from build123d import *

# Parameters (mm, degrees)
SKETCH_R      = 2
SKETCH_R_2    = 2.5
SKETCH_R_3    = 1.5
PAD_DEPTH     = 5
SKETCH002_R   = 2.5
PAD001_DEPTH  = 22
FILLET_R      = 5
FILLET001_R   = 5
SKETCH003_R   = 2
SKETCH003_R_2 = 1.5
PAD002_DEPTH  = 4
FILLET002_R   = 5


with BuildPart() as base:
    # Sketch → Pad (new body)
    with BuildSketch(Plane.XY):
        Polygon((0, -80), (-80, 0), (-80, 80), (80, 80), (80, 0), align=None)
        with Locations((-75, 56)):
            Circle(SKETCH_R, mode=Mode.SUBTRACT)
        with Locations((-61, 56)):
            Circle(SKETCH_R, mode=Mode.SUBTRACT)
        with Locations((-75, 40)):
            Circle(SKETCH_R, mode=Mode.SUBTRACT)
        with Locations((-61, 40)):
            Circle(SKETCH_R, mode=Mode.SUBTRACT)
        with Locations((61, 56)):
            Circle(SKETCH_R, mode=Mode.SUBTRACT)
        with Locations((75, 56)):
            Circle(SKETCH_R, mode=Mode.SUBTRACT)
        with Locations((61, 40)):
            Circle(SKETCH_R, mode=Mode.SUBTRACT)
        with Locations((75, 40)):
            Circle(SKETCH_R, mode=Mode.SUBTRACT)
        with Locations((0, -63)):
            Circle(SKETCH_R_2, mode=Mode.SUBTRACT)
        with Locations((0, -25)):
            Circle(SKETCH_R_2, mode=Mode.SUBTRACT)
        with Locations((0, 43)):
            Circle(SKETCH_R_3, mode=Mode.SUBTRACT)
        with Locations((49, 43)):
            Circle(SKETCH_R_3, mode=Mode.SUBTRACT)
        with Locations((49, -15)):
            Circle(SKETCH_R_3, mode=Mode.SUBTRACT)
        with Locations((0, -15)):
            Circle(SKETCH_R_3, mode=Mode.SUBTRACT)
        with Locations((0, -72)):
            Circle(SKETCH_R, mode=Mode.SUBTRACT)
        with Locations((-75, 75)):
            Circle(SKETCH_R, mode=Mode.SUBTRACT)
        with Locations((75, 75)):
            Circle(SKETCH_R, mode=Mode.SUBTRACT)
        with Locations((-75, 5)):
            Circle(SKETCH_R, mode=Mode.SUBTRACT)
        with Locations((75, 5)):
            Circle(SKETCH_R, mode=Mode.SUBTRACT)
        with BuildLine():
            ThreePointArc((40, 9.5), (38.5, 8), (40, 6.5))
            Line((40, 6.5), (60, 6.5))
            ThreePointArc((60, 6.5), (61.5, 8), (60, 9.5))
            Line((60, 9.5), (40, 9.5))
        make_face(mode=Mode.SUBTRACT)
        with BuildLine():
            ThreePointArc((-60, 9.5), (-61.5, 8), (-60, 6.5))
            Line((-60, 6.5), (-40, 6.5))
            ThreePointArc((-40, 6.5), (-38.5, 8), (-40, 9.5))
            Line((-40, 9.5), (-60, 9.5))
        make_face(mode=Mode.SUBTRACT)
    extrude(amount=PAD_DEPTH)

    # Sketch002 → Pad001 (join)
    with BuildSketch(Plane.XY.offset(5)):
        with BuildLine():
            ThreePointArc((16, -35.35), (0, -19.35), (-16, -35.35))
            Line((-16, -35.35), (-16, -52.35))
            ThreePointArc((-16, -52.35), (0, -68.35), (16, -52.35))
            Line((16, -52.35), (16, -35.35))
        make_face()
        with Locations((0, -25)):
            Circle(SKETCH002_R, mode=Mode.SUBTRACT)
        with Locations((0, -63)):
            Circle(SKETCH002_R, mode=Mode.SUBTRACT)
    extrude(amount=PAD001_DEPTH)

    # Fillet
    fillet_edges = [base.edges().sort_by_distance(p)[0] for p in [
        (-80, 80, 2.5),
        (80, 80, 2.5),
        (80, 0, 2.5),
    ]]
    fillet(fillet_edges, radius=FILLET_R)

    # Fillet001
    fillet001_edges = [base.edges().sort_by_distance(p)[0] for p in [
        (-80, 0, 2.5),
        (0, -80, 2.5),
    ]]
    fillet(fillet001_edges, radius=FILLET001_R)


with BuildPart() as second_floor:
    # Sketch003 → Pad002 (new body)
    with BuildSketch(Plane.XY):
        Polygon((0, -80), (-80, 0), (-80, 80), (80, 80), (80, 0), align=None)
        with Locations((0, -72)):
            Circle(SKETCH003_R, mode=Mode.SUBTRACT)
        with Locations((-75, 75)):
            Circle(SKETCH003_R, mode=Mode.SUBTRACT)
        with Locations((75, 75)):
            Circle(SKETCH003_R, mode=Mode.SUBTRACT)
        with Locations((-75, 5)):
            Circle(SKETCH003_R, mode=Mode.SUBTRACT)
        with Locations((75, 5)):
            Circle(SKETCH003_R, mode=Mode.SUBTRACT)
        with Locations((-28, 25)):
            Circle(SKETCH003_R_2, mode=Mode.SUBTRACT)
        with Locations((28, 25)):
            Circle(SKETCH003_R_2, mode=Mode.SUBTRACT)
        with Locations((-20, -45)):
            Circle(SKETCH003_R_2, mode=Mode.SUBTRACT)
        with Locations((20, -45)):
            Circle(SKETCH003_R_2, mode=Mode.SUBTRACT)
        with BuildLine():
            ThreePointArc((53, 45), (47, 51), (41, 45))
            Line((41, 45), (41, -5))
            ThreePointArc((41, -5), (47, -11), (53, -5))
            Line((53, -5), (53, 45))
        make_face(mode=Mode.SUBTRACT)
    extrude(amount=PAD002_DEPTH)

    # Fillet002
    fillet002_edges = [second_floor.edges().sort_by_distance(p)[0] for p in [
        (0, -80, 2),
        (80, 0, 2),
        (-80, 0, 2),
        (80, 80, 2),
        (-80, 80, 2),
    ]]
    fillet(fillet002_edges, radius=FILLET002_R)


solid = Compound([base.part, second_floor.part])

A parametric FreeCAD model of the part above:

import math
import FreeCAD as App
import Part
import Sketcher
Q = App.Units.Quantity


def edges_at(feature, points):
    """Names of the edges that pass closest to the given points."""
    edges = feature.Shape.Edges
    near = lambda p: min(range(len(edges)), key=lambda i: edges[i].distToShape(Part.Vertex(*p))[0])
    return sorted({f"Edge{near(p) + 1}" for p in points})

doc = App.newDocument("Part")
params = doc.addObject("Spreadsheet::Sheet", "Params")
for row, (alias, value) in enumerate([
    ("sketch1_diameter", "3 mm"),
    ("sketch1_diameter2", "4 mm"),
    ("sketch1_diameter3", "5 mm"),
    ("sketch1_width", "160 mm"),
    ("sketch1_width2", "20 mm"),
    ("pad1_length", "5 mm"),
    ("sketch2_diameter", "5 mm"),
    ("sketch2_radius", "16 mm"),
    ("sketch2_height", "17 mm"),
    ("pad2_length", "22 mm"),
    ("fillet_radius", "5 mm"),
    ("fillet2_radius", "5 mm"),
    ("sketch3_diameter", "3 mm"),
    ("sketch3_diameter2", "4 mm"),
    ("sketch3_radius", "6 mm"),
    ("sketch3_width", "160 mm"),
    ("sketch3_height", "80 mm"),
    ("pad3_length", "4 mm"),
    ("fillet3_radius", "5 mm"),
], start=1):
    params.set(f"A{row}", alias)
    params.set(f"B{row}", "=" + value)
    params.setAlias(f"B{row}", alias)

body = doc.addObject("PartDesign::Body", "Body")

# Sketch on XY plane
sketch1 = body.newObject("Sketcher::SketchObject", "Sketch")
sketch1.AttachmentSupport = (doc.getObject("XY_Plane"), [""])
sketch1.MapMode = "FlatFace"
sketch1.addGeometry(Part.LineSegment(App.Vector(-80, 0, 0), App.Vector(0, -80, 0)), False)
sketch1.addGeometry(Part.LineSegment(App.Vector(0, -80, 0), App.Vector(80, 0, 0)), False)
sketch1.addGeometry(Part.LineSegment(App.Vector(80, 0, 0), App.Vector(80, 80, 0)), False)
sketch1.addGeometry(Part.LineSegment(App.Vector(80, 80, 0), App.Vector(-80, 80, 0)), False)
sketch1.addGeometry(Part.LineSegment(App.Vector(-80, 80, 0), App.Vector(-80, 0, 0)), False)
sketch1.addGeometry(Part.Circle(App.Vector(49, -15, 0), App.Vector(0, 0, 1), 1.5), False)
sketch1.addGeometry(Part.Circle(App.Vector(0, -72, 0), App.Vector(0, 0, 1), 2), False)
sketch1.addGeometry(Part.Circle(App.Vector(0, -63, 0), App.Vector(0, 0, 1), 2.5), False)
sketch1.addGeometry(Part.Circle(App.Vector(0, -25, 0), App.Vector(0, 0, 1), 2.5), False)
sketch1.addGeometry(Part.Circle(App.Vector(0, -15, 0), App.Vector(0, 0, 1), 1.5), False)
sketch1.addGeometry(Part.Circle(App.Vector(75, 5, 0), App.Vector(0, 0, 1), 2), False)
sketch1.addGeometry(Part.LineSegment(App.Vector(40, 9.5, 0), App.Vector(60, 9.5, 0)), False)
sketch1.addGeometry(Part.ArcOfCircle(Part.Circle(App.Vector(60, 8, 0), App.Vector(0, 0, 1), 1.5), math.radians(-90), math.radians(90)), False)
sketch1.addGeometry(Part.LineSegment(App.Vector(60, 6.5, 0), App.Vector(40, 6.5, 0)), False)
sketch1.addGeometry(Part.ArcOfCircle(Part.Circle(App.Vector(40, 8, 0), App.Vector(0, 0, 1), 1.5), math.radians(90), math.radians(270)), False)
sketch1.addGeometry(Part.Circle(App.Vector(75, 40, 0), App.Vector(0, 0, 1), 2), False)
sketch1.addGeometry(Part.Circle(App.Vector(61, 40, 0), App.Vector(0, 0, 1), 2), False)
sketch1.addGeometry(Part.Circle(App.Vector(75, 56, 0), App.Vector(0, 0, 1), 2), False)
sketch1.addGeometry(Part.Circle(App.Vector(61, 56, 0), App.Vector(0, 0, 1), 2), False)
sketch1.addGeometry(Part.Circle(App.Vector(49, 43, 0), App.Vector(0, 0, 1), 1.5), False)
sketch1.addGeometry(Part.Circle(App.Vector(75, 75, 0), App.Vector(0, 0, 1), 2), False)
sketch1.addGeometry(Part.LineSegment(App.Vector(-60, 9.5, 0), App.Vector(-40, 9.5, 0)), False)
sketch1.addGeometry(Part.ArcOfCircle(Part.Circle(App.Vector(-40, 8, 0), App.Vector(0, 0, 1), 1.5), math.radians(-90), math.radians(90)), False)
sketch1.addGeometry(Part.LineSegment(App.Vector(-40, 6.5, 0), App.Vector(-60, 6.5, 0)), False)
sketch1.addGeometry(Part.ArcOfCircle(Part.Circle(App.Vector(-60, 8, 0), App.Vector(0, 0, 1), 1.5), math.radians(90), math.radians(270)), False)
sketch1.addGeometry(Part.Circle(App.Vector(-75, 5, 0), App.Vector(0, 0, 1), 2), False)
sketch1.addGeometry(Part.Circle(App.Vector(0, 43, 0), App.Vector(0, 0, 1), 1.5), False)
sketch1.addGeometry(Part.Circle(App.Vector(-61, 40, 0), App.Vector(0, 0, 1), 2), False)
sketch1.addGeometry(Part.Circle(App.Vector(-75, 40, 0), App.Vector(0, 0, 1), 2), False)
sketch1.addGeometry(Part.Circle(App.Vector(-61, 56, 0), App.Vector(0, 0, 1), 2), False)
sketch1.addGeometry(Part.Circle(App.Vector(-75, 56, 0), App.Vector(0, 0, 1), 2), False)
sketch1.addGeometry(Part.Circle(App.Vector(-75, 75, 0), App.Vector(0, 0, 1), 2), False)
sketch1.addConstraint(Sketcher.Constraint("Coincident", 0, 2, 1, 1))
sketch1.addConstraint(Sketcher.Constraint("Coincident", 1, 2, 2, 1))
sketch1.addConstraint(Sketcher.Constraint("Coincident", 2, 2, 3, 1))
sketch1.addConstraint(Sketcher.Constraint("Coincident", 3, 2, 4, 1))
sketch1.addConstraint(Sketcher.Constraint("Coincident", 4, 2, 0, 1))
sketch1.addConstraint(Sketcher.Constraint("Tangent", 11, 2, 12, 2))
sketch1.addConstraint(Sketcher.Constraint("Tangent", 12, 1, 13, 1))
sketch1.addConstraint(Sketcher.Constraint("Tangent", 13, 2, 14, 2))
sketch1.addConstraint(Sketcher.Constraint("Tangent", 14, 1, 11, 1))
sketch1.addConstraint(Sketcher.Constraint("Tangent", 21, 2, 22, 2))
sketch1.addConstraint(Sketcher.Constraint("Tangent", 22, 1, 23, 1))
sketch1.addConstraint(Sketcher.Constraint("Tangent", 23, 2, 24, 2))
sketch1.addConstraint(Sketcher.Constraint("Tangent", 24, 1, 21, 1))
sketch1.addConstraint(Sketcher.Constraint("Vertical", 2))
sketch1.addConstraint(Sketcher.Constraint("Horizontal", 3))
sketch1.addConstraint(Sketcher.Constraint("Vertical", 4))
sketch1.addConstraint(Sketcher.Constraint("Horizontal", 11))
sketch1.addConstraint(Sketcher.Constraint("Horizontal", 13))
sketch1.addConstraint(Sketcher.Constraint("Horizontal", 21))
sketch1.addConstraint(Sketcher.Constraint("Horizontal", 23))
sketch1.addConstraint(Sketcher.Constraint("Equal", 7, 8))
sketch1.addConstraint(Sketcher.Constraint("Equal", 5, 9))
sketch1.addConstraint(Sketcher.Constraint("Equal", 6, 10))
sketch1.addConstraint(Sketcher.Constraint("Equal", 9, 12))
sketch1.addConstraint(Sketcher.Constraint("Equal", 10, 15))
sketch1.addConstraint(Sketcher.Constraint("Equal", 15, 16))
sketch1.addConstraint(Sketcher.Constraint("Equal", 16, 17))
sketch1.addConstraint(Sketcher.Constraint("Equal", 17, 18))
sketch1.addConstraint(Sketcher.Constraint("Equal", 14, 19))
sketch1.addConstraint(Sketcher.Constraint("Equal", 18, 20))
sketch1.addConstraint(Sketcher.Constraint("Equal", 19, 22))
sketch1.addConstraint(Sketcher.Constraint("Equal", 20, 25))
sketch1.addConstraint(Sketcher.Constraint("Equal", 24, 26))
sketch1.addConstraint(Sketcher.Constraint("Equal", 25, 27))
sketch1.addConstraint(Sketcher.Constraint("Equal", 27, 28))
sketch1.addConstraint(Sketcher.Constraint("Equal", 28, 29))
sketch1.addConstraint(Sketcher.Constraint("Equal", 29, 30))
sketch1.addConstraint(Sketcher.Constraint("Equal", 30, 31))
sketch1.addConstraint(Sketcher.Constraint("Symmetric", 1, 2, 4, 2, -1, 1))
sketch1.addConstraint(Sketcher.Constraint("Symmetric", 14, 3, 22, 3, -2))
sketch1.addConstraint(Sketcher.Constraint("Symmetric", 10, 3, 25, 3, -2))
sketch1.addConstraint(Sketcher.Constraint("Symmetric", 16, 3, 27, 3, -2))
sketch1.addConstraint(Sketcher.Constraint("Symmetric", 15, 3, 28, 3, -2))
sketch1.addConstraint(Sketcher.Constraint("Symmetric", 18, 3, 29, 3, -2))
sketch1.addConstraint(Sketcher.Constraint("Symmetric", 17, 3, 30, 3, -2))
sketch1.addConstraint(Sketcher.Constraint("Symmetric", 20, 3, 31, 3, -2))
sketch1.addConstraint(Sketcher.Constraint("PointOnObject", 6, 3, -2))
sketch1.addConstraint(Sketcher.Constraint("PointOnObject", 7, 3, -2))
sketch1.addConstraint(Sketcher.Constraint("PointOnObject", 8, 3, -2))
sketch1.addConstraint(Sketcher.Constraint("PointOnObject", 9, 3, -2))
sketch1.addConstraint(Sketcher.Constraint("PointOnObject", 26, 3, -2))
sketch1.addConstraint(Sketcher.Constraint("PointOnObject", 0, 2, -2))
sketch1.addConstraint(Sketcher.Constraint("PointOnObject", 1, 2, -1))
sketch1.addConstraint(Sketcher.Constraint("Perpendicular", 0, 1))
sketch1.addConstraint(Sketcher.Constraint("Horizontal", 5, 3, 9, 3))
sketch1.addConstraint(Sketcher.Constraint("Horizontal", 15, 3, 16, 3))
sketch1.addConstraint(Sketcher.Constraint("Horizontal", 17, 3, 18, 3))
sketch1.addConstraint(Sketcher.Constraint("Horizontal", 19, 3, 26, 3))
sketch1.addConstraint(Sketcher.Constraint("Vertical", 10, 3, 15, 3))
sketch1.addConstraint(Sketcher.Constraint("Vertical", 15, 3, 17, 3))
sketch1.addConstraint(Sketcher.Constraint("Vertical", 16, 3, 18, 3))
sketch1.addConstraint(Sketcher.Constraint("Vertical", 5, 3, 19, 3))
sketch1.addConstraint(Sketcher.Constraint("Vertical", 17, 3, 20, 3))
sketch1.addConstraint(Sketcher.Constraint("Equal", 13, 21))
sketch1.addConstraint(Sketcher.Constraint("Diameter", 5, Q("3 mm")))
sketch1.addConstraint(Sketcher.Constraint("Diameter", 6, Q("4 mm")))
sketch1.addConstraint(Sketcher.Constraint("Diameter", 7, Q("5 mm")))
sketch1.addConstraint(Sketcher.Constraint("DistanceX", 3, 2, 3, 1, Q("160 mm")))
sketch1.addConstraint(Sketcher.Constraint("DistanceX", 11, 1, 11, 2, Q("20 mm")))
sketch1.addConstraint(Sketcher.Constraint("DistanceY", 2, 1, 2, 2, Q("80 mm")))
sketch1.addConstraint(Sketcher.Constraint("DistanceX", -1, 1, 5, 3, Q("49 mm")))
sketch1.addConstraint(Sketcher.Constraint("DistanceY", 5, 3, -1, 1, Q("15 mm")))
sketch1.addConstraint(Sketcher.Constraint("DistanceY", 6, 3, -1, 1, Q("72 mm")))
sketch1.addConstraint(Sketcher.Constraint("DistanceY", 7, 3, -1, 1, Q("63 mm")))
sketch1.addConstraint(Sketcher.Constraint("DistanceY", 8, 3, -1, 1, Q("25 mm")))
sketch1.addConstraint(Sketcher.Constraint("DistanceX", -1, 1, 10, 3, Q("75 mm")))
sketch1.addConstraint(Sketcher.Constraint("DistanceY", -1, 1, 10, 3, Q("5 mm")))
sketch1.addConstraint(Sketcher.Constraint("DistanceX", -1, 1, 12, 3, Q("60 mm")))
sketch1.addConstraint(Sketcher.Constraint("DistanceY", -1, 1, 12, 3, Q("8 mm")))
sketch1.addConstraint(Sketcher.Constraint("DistanceY", -1, 1, 15, 3, Q("40 mm")))
sketch1.addConstraint(Sketcher.Constraint("DistanceX", -1, 1, 16, 3, Q("61 mm")))
sketch1.addConstraint(Sketcher.Constraint("DistanceY", -1, 1, 17, 3, Q("56 mm")))
sketch1.addConstraint(Sketcher.Constraint("DistanceY", -1, 1, 19, 3, Q("43 mm")))
sketch1.addConstraint(Sketcher.Constraint("DistanceY", -1, 1, 20, 3, Q("75 mm")))
sketch1.setExpression("Constraints[64]", "Params.sketch1_diameter")
sketch1.setExpression("Constraints[65]", "Params.sketch1_diameter2")
sketch1.setExpression("Constraints[66]", "Params.sketch1_diameter3")
sketch1.setExpression("Constraints[67]", "Params.sketch1_width")
sketch1.setExpression("Constraints[68]", "Params.sketch1_width2")
pad1 = body.newObject("PartDesign::Pad", "Pad")
pad1.Profile = sketch1
pad1.setExpression("Length", "Params.pad1_length")

# Sketch on XY plane
sketch2 = body.newObject("Sketcher::SketchObject", "Sketch001")
sketch2.AttachmentSupport = (doc.getObject("XY_Plane"), [""])
sketch2.MapMode = "FlatFace"
sketch2.AttachmentOffset = App.Placement(App.Vector(0, 0, 5), App.Rotation())
sketch2.addGeometry(Part.ArcOfCircle(Part.Circle(App.Vector(0, -35.4, 0), App.Vector(0, 0, 1), 16), math.radians(0), math.radians(180)), False)
sketch2.addGeometry(Part.LineSegment(App.Vector(-16, -35.4, 0), App.Vector(-16, -52.4, 0)), False)
sketch2.addGeometry(Part.ArcOfCircle(Part.Circle(App.Vector(0, -52.4, 0), App.Vector(0, 0, 1), 16), math.radians(180), math.radians(360)), False)
sketch2.addGeometry(Part.LineSegment(App.Vector(16, -52.4, 0), App.Vector(16, -35.4, 0)), False)
sketch2.addGeometry(Part.Circle(App.Vector(0, -63, 0), App.Vector(0, 0, 1), 2.5), False)
sketch2.addGeometry(Part.Circle(App.Vector(0, -25, 0), App.Vector(0, 0, 1), 2.5), False)
sketch2.addConstraint(Sketcher.Constraint("Tangent", 0, 2, 1, 1))
sketch2.addConstraint(Sketcher.Constraint("Tangent", 1, 2, 2, 1))
sketch2.addConstraint(Sketcher.Constraint("Tangent", 2, 2, 3, 1))
sketch2.addConstraint(Sketcher.Constraint("Tangent", 3, 2, 0, 1))
sketch2.addConstraint(Sketcher.Constraint("Vertical", 1))
sketch2.addConstraint(Sketcher.Constraint("Vertical", 3))
sketch2.addConstraint(Sketcher.Constraint("Equal", 4, 5))
sketch2.addConstraint(Sketcher.Constraint("PointOnObject", 0, 3, -2))
sketch2.addConstraint(Sketcher.Constraint("PointOnObject", 4, 3, -2))
sketch2.addConstraint(Sketcher.Constraint("PointOnObject", 5, 3, -2))
sketch2.addConstraint(Sketcher.Constraint("Diameter", 4, Q("5 mm")))
sketch2.addConstraint(Sketcher.Constraint("Radius", 0, Q("16 mm")))
sketch2.addConstraint(Sketcher.Constraint("DistanceY", 1, 2, 1, 1, Q("17 mm")))
sketch2.addConstraint(Sketcher.Constraint("DistanceY", 4, 3, -1, 1, Q("63 mm")))
sketch2.addConstraint(Sketcher.Constraint("DistanceY", 5, 3, -1, 1, Q("25 mm")))
sketch2.addConstraint(Sketcher.Constraint("DistanceY", 0, 3, -1, 1, Q("35.35 mm")))
sketch2.setExpression("Constraints[10]", "Params.sketch2_diameter")
sketch2.setExpression("Constraints[11]", "Params.sketch2_radius")
sketch2.setExpression("Constraints[12]", "Params.sketch2_height")
pad2 = body.newObject("PartDesign::Pad", "Pad001")
pad2.Profile = sketch2
pad2.setExpression("Length", "Params.pad2_length")
doc.recompute()

fillet = body.newObject("PartDesign::Fillet", "Fillet")
fillet.Base = (pad2, edges_at(pad2, [(-80, 80, 2.5), (80, 80, 2.5), (80, 0, 2.5)]))
fillet.setExpression("Radius", "Params.fillet_radius")
doc.recompute()

fillet2 = body.newObject("PartDesign::Fillet", "Fillet001")
fillet2.Base = (fillet, edges_at(fillet, [(-80, 0, 2.5), (0, -80, 2.5)]))
fillet2.setExpression("Radius", "Params.fillet2_radius")
body2 = doc.addObject("PartDesign::Body", "Body001")

# Sketch on XY plane
sketch3 = body2.newObject("Sketcher::SketchObject", "Sketch002")
sketch3.AttachmentSupport = (doc.getObject("XY_Plane001"), [""])
sketch3.MapMode = "FlatFace"
sketch3.addGeometry(Part.LineSegment(App.Vector(-80, 0, 0), App.Vector(0, -80, 0)), False)
sketch3.addGeometry(Part.LineSegment(App.Vector(0, -80, 0), App.Vector(80, 0, 0)), False)
sketch3.addGeometry(Part.LineSegment(App.Vector(80, 0, 0), App.Vector(80, 80, 0)), False)
sketch3.addGeometry(Part.LineSegment(App.Vector(80, 80, 0), App.Vector(-80, 80, 0)), False)
sketch3.addGeometry(Part.LineSegment(App.Vector(-80, 80, 0), App.Vector(-80, 0, 0)), False)
sketch3.addGeometry(Part.Circle(App.Vector(20, -45, 0), App.Vector(0, 0, 1), 1.5), False)
sketch3.addGeometry(Part.Circle(App.Vector(0, -72, 0), App.Vector(0, 0, 1), 2), False)
sketch3.addGeometry(Part.Circle(App.Vector(-20, -45, 0), App.Vector(0, 0, 1), 1.5), False)
sketch3.addGeometry(Part.Circle(App.Vector(75, 5, 0), App.Vector(0, 0, 1), 2), False)
sketch3.addGeometry(Part.LineSegment(App.Vector(53, 45, 0), App.Vector(53, -5, 0)), False)
sketch3.addGeometry(Part.ArcOfCircle(Part.Circle(App.Vector(47, -5, 0), App.Vector(0, 0, 1), 6), math.radians(180), math.radians(360)), False)
sketch3.addGeometry(Part.LineSegment(App.Vector(41, -5, 0), App.Vector(41, 45, 0)), False)
sketch3.addGeometry(Part.ArcOfCircle(Part.Circle(App.Vector(47, 45, 0), App.Vector(0, 0, 1), 6), math.radians(0), math.radians(180)), False)
sketch3.addGeometry(Part.Circle(App.Vector(28, 25, 0), App.Vector(0, 0, 1), 1.5), False)
sketch3.addGeometry(Part.Circle(App.Vector(75, 75, 0), App.Vector(0, 0, 1), 2), False)
sketch3.addGeometry(Part.Circle(App.Vector(-28, 25, 0), App.Vector(0, 0, 1), 1.5), False)
sketch3.addGeometry(Part.Circle(App.Vector(-75, 5, 0), App.Vector(0, 0, 1), 2), False)
sketch3.addGeometry(Part.Circle(App.Vector(-75, 75, 0), App.Vector(0, 0, 1), 2), False)
sketch3.addConstraint(Sketcher.Constraint("Coincident", 0, 2, 1, 1))
sketch3.addConstraint(Sketcher.Constraint("Coincident", 1, 2, 2, 1))
sketch3.addConstraint(Sketcher.Constraint("Coincident", 2, 2, 3, 1))
sketch3.addConstraint(Sketcher.Constraint("Coincident", 3, 2, 4, 1))
sketch3.addConstraint(Sketcher.Constraint("Coincident", 4, 2, 0, 1))
sketch3.addConstraint(Sketcher.Constraint("Tangent", 9, 2, 10, 2))
sketch3.addConstraint(Sketcher.Constraint("Tangent", 10, 1, 11, 1))
sketch3.addConstraint(Sketcher.Constraint("Tangent", 11, 2, 12, 2))
sketch3.addConstraint(Sketcher.Constraint("Tangent", 12, 1, 9, 1))
sketch3.addConstraint(Sketcher.Constraint("Vertical", 2))
sketch3.addConstraint(Sketcher.Constraint("Horizontal", 3))
sketch3.addConstraint(Sketcher.Constraint("Vertical", 4))
sketch3.addConstraint(Sketcher.Constraint("Vertical", 9))
sketch3.addConstraint(Sketcher.Constraint("Vertical", 11))
sketch3.addConstraint(Sketcher.Constraint("Equal", 5, 7))
sketch3.addConstraint(Sketcher.Constraint("Equal", 6, 8))
sketch3.addConstraint(Sketcher.Constraint("Equal", 7, 13))
sketch3.addConstraint(Sketcher.Constraint("Equal", 8, 14))
sketch3.addConstraint(Sketcher.Constraint("Equal", 13, 15))
sketch3.addConstraint(Sketcher.Constraint("Equal", 14, 16))
sketch3.addConstraint(Sketcher.Constraint("Equal", 16, 17))
sketch3.addConstraint(Sketcher.Constraint("Symmetric", 1, 2, 4, 2, -1, 1))
sketch3.addConstraint(Sketcher.Constraint("Symmetric", 5, 3, 7, 3, -2))
sketch3.addConstraint(Sketcher.Constraint("Symmetric", 13, 3, 15, 3, -2))
sketch3.addConstraint(Sketcher.Constraint("Symmetric", 8, 3, 16, 3, -2))
sketch3.addConstraint(Sketcher.Constraint("Symmetric", 14, 3, 17, 3, -2))
sketch3.addConstraint(Sketcher.Constraint("PointOnObject", 6, 3, -2))
sketch3.addConstraint(Sketcher.Constraint("PointOnObject", 0, 2, -2))
sketch3.addConstraint(Sketcher.Constraint("PointOnObject", 1, 2, -1))
sketch3.addConstraint(Sketcher.Constraint("Perpendicular", 0, 1))
sketch3.addConstraint(Sketcher.Constraint("Vertical", 8, 3, 14, 3))
sketch3.addConstraint(Sketcher.Constraint("Diameter", 5, Q("3 mm")))
sketch3.addConstraint(Sketcher.Constraint("Diameter", 6, Q("4 mm")))
sketch3.addConstraint(Sketcher.Constraint("Radius", 10, Q("6 mm")))
sketch3.addConstraint(Sketcher.Constraint("DistanceX", 3, 2, 3, 1, Q("160 mm")))
sketch3.addConstraint(Sketcher.Constraint("DistanceY", 2, 1, 2, 2, Q("80 mm")))
sketch3.addConstraint(Sketcher.Constraint("DistanceY", 9, 2, 9, 1, Q("50 mm")))
sketch3.addConstraint(Sketcher.Constraint("DistanceX", -1, 1, 5, 3, Q("20 mm")))
sketch3.addConstraint(Sketcher.Constraint("DistanceY", 5, 3, -1, 1, Q("45 mm")))
sketch3.addConstraint(Sketcher.Constraint("DistanceY", 6, 3, -1, 1, Q("72 mm")))
sketch3.addConstraint(Sketcher.Constraint("DistanceX", -1, 1, 8, 3, Q("75 mm")))
sketch3.addConstraint(Sketcher.Constraint("DistanceY", -1, 1, 8, 3, Q("5 mm")))
sketch3.addConstraint(Sketcher.Constraint("DistanceX", -1, 1, 10, 3, Q("47 mm")))
sketch3.addConstraint(Sketcher.Constraint("DistanceY", 10, 3, -1, 1, Q("5 mm")))
sketch3.addConstraint(Sketcher.Constraint("DistanceX", -1, 1, 13, 3, Q("28 mm")))
sketch3.addConstraint(Sketcher.Constraint("DistanceY", -1, 1, 13, 3, Q("25 mm")))
sketch3.addConstraint(Sketcher.Constraint("DistanceY", -1, 1, 14, 3, Q("75 mm")))
sketch3.setExpression("Constraints[31]", "Params.sketch3_diameter")
sketch3.setExpression("Constraints[32]", "Params.sketch3_diameter2")
sketch3.setExpression("Constraints[33]", "Params.sketch3_radius")
sketch3.setExpression("Constraints[34]", "Params.sketch3_width")
sketch3.setExpression("Constraints[35]", "Params.sketch3_height")
pad3 = body2.newObject("PartDesign::Pad", "Pad002")
pad3.Profile = sketch3
pad3.setExpression("Length", "Params.pad3_length")
doc.recompute()

fillet3 = body2.newObject("PartDesign::Fillet", "Fillet002")
fillet3.Base = (pad3, edges_at(pad3, [
    (0, -80, 2),
    (80, 0, 2),
    (-80, 0, 2),
    (80, 80, 2),
    (-80, 80, 2),
]))
fillet3.setExpression("Radius", "Params.fillet3_radius")

doc.recompute()
